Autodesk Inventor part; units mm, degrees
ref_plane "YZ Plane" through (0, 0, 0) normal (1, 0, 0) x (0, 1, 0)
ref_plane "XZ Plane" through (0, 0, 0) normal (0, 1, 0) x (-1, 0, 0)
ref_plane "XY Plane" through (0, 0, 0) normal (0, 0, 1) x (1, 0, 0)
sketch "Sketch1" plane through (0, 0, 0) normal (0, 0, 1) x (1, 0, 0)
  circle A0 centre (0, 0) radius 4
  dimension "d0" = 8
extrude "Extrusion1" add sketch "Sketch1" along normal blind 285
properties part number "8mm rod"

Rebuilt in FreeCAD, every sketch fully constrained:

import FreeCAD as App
import Part
import Sketcher
Q = App.Units.Quantity

doc = App.newDocument("Part")
body = doc.addObject("PartDesign::Body", "Body")

sketch1 = body.newObject("Sketcher::SketchObject", "Sketch")
sketch1.AttachmentSupport = (doc.getObject("XY_Plane"), [""])
sketch1.MapMode = "FlatFace"
sketch1.addGeometry(Part.Circle(App.Vector(0, 0, 0), App.Vector(0, 0, 1), 4), False)
sketch1.addConstraint(Sketcher.Constraint("Coincident", 0, 3, -1, 1))
sketch1.addConstraint(Sketcher.Constraint("Diameter", 0, Q("8 mm")))
pad1 = body.newObject("PartDesign::Pad", "Pad")
pad1.Profile = sketch1
pad1.Length = 285

doc.recompute()
